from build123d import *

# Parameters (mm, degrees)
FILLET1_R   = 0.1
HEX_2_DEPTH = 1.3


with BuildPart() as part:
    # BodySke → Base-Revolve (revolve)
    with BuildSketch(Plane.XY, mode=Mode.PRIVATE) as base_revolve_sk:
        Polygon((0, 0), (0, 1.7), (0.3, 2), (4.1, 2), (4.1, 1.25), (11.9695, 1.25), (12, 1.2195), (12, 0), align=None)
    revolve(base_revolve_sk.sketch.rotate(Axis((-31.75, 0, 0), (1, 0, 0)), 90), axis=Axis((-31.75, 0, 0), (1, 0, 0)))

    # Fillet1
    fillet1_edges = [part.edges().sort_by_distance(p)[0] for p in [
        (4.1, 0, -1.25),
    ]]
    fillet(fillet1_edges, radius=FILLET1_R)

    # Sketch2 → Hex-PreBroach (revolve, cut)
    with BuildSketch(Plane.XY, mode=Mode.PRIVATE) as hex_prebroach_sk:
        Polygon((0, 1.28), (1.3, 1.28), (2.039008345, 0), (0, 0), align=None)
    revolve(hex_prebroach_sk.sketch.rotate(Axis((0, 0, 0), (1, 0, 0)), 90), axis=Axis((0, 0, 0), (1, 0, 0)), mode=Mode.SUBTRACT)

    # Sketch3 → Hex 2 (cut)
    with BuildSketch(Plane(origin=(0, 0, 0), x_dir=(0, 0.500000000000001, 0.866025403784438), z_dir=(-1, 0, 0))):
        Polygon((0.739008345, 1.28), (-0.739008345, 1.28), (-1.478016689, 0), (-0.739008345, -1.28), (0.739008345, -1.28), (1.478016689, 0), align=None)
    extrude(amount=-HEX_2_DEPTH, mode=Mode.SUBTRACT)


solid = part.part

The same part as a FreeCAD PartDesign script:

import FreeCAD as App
import Part
import Sketcher

V = App.Vector
Q = App.Units.Quantity


def edges_at(feature, points):
    """Names of the edges that pass closest to the given points."""
    edges = feature.Shape.Edges
    near = lambda p: min(range(len(edges)), key=lambda i: edges[i].distToShape(Part.Vertex(*p))[0])
    return sorted({f"Edge{near(p) + 1}" for p in points})

doc = App.newDocument("Part")
body = doc.addObject("PartDesign::Body", "Body")

# Sketch on XY plane
sketch1 = body.newObject("Sketcher::SketchObject", "Sketch")
sketch1.AttachmentSupport = (doc.getObject("XY_Plane"), [""])
sketch1.MapMode = "FlatFace"
sketch1.addGeometry([
    Part.LineSegment(V(0, 1.7, 0), V(0, 0, 0)),  # 0
    Part.LineSegment(V(0, 0, 0), V(12, 0, 0)),  # 1
    Part.LineSegment(V(12, 0, 0), V(12, 1.22, 0)),  # 2
    Part.LineSegment(V(12, 1.22, 0), V(11.97, 1.25, 0)),  # 3
    Part.LineSegment(V(11.97, 1.25, 0), V(4.1, 1.25, 0)),  # 4
    Part.LineSegment(V(4.1, 1.25, 0), V(4.1, 2, 0)),  # 5
    Part.LineSegment(V(4.1, 2, 0), V(0.3, 2, 0)),  # 6
    Part.LineSegment(V(0.3, 2, 0), V(0, 1.7, 0)),  # 7
], False)
sketch1.addConstraint([
    Sketcher.Constraint("Coincident", 0, 2, 1, 1),
    Sketcher.Constraint("Coincident", 1, 2, 2, 1),
    Sketcher.Constraint("Coincident", 2, 2, 3, 1),
    Sketcher.Constraint("Coincident", 3, 2, 4, 1),
    Sketcher.Constraint("Coincident", 4, 2, 5, 1),
    Sketcher.Constraint("Coincident", 5, 2, 6, 1),
    Sketcher.Constraint("Coincident", 6, 2, 7, 1),
    Sketcher.Constraint("Coincident", 7, 2, 0, 1),
    Sketcher.Constraint("Vertical", 0),
    Sketcher.Constraint("Horizontal", 1),
    Sketcher.Constraint("Vertical", 2),
    Sketcher.Constraint("Horizontal", 4),
    Sketcher.Constraint("Vertical", 5),
    Sketcher.Constraint("Horizontal", 6),
    Sketcher.Constraint("Coincident", 0, 2, -1, 1),
    Sketcher.Constraint("Perpendicular", 3, 7),
    Sketcher.Constraint("DistanceX", 1, 1, 1, 2, 12.0),
    Sketcher.Constraint("Angle", 3, Q("135 deg")),
    Sketcher.Constraint("DistanceX", 6, 2, 6, 1, 3.8),
    Sketcher.Constraint("DistanceY", 0, 2, 0, 1, 1.7),
    Sketcher.Constraint("DistanceY", -1, 1, 5, 2, 2.0),
    Sketcher.Constraint("DistanceY", 5, 1, 5, 2, 0.75),
    Sketcher.Constraint("DistanceX", 4, 2, 4, 1, 7.8695),
])
revolution = body.newObject("PartDesign::Revolution", "Revolution")
revolution.Profile = sketch1
revolution.ReferenceAxis = (sketch1, ["H_Axis"])
revolution.Angle = 360
doc.recompute()

fillet = body.newObject("PartDesign::Fillet", "Fillet")
fillet.Base = (revolution, edges_at(revolution, [(4.1, 0, -1.25)]))
fillet.Radius = 0.1

# Sketch on XY plane
sketch2 = body.newObject("Sketcher::SketchObject", "Sketch001")
sketch2.AttachmentSupport = (doc.getObject("XY_Plane"), [""])
sketch2.MapMode = "FlatFace"
sketch2.addGeometry([
    Part.LineSegment(V(1.3, 1.3, 0), V(0, 1.3, 0)),
    Part.LineSegment(V(0, 1.3, 0), V(0, 0, 0)),
    Part.LineSegment(V(0, 0, 0), V(2, 0, 0)),
    Part.LineSegment(V(2, 0, 0), V(1.3, 1.3, 0)),
], False)
sketch2.addConstraint([
    Sketcher.Constraint("Coincident", 0, 2, 1, 1),
    Sketcher.Constraint("Coincident", 1, 2, 2, 1),
    Sketcher.Constraint("Coincident", 2, 2, 3, 1),
    Sketcher.Constraint("Coincident", 3, 2, 0, 1),
    Sketcher.Constraint("Horizontal", 0),
    Sketcher.Constraint("Vertical", 1),
    Sketcher.Constraint("Horizontal", 2),
    Sketcher.Constraint("Coincident", 1, 2, -1, 1),
    Sketcher.Constraint("Angle", 3, Q("120 deg")),
    Sketcher.Constraint("DistanceX", 0, 2, 0, 1, 1.3),
    Sketcher.Constraint("DistanceY", 1, 2, 1, 1, 1.28),
])
groove = body.newObject("PartDesign::Groove", "Groove")
groove.Profile = sketch2
groove.ReferenceAxis = (sketch2, ["H_Axis"])
groove.Angle = 360

# Sketch on YZ plane
sketch3 = body.newObject("Sketcher::SketchObject", "Sketch002")
sketch3.AttachmentSupport = (doc.getObject("YZ_Plane"), [""])
sketch3.MapMode = "FlatFace"
sketch3.addGeometry([
    Part.LineSegment(V(1.5, 0, 0), V(0.7, -1.3, 0)),  # 0
    Part.LineSegment(V(0.7, -1.3, 0), V(-0.7, -1.3, 0)),  # 1
    Part.LineSegment(V(-0.7, -1.3, 0), V(-1.5, 0, 0)),  # 2
    Part.LineSegment(V(-1.5, 0, 0), V(-0.7, 1.3, 0)),  # 3
    Part.LineSegment(V(-0.7, 1.3, 0), V(0.7, 1.3, 0)),  # 4
    Part.LineSegment(V(0.7, 1.3, 0), V(1.5, 0, 0)),  # 5
], False)
sketch3.addConstraint([
    Sketcher.Constraint("Coincident", 0, 2, 1, 1),
    Sketcher.Constraint("Coincident", 1, 2, 2, 1),
    Sketcher.Constraint("Coincident", 2, 2, 3, 1),
    Sketcher.Constraint("Coincident", 3, 2, 4, 1),
    Sketcher.Constraint("Coincident", 4, 2, 5, 1),
    Sketcher.Constraint("Coincident", 5, 2, 0, 1),
    Sketcher.Constraint("Horizontal", 1),
    Sketcher.Constraint("Horizontal", 4),
    Sketcher.Constraint("Symmetric", 0, 2, 3, 2, -1, 1),
    Sketcher.Constraint("Symmetric", 2, 2, 5, 2, -1, 1),
    Sketcher.Constraint("PointOnObject", 2, 2, -1),
    Sketcher.Constraint("Parallel", 2, 5),
    Sketcher.Constraint("Vertical", 1, 2, 3, 2),
    Sketcher.Constraint("Angle", 0, Q("-120 deg")),
    Sketcher.Constraint("DistanceY", 0, 2, -1, 1, 1.28),
    Sketcher.Constraint("DistanceX", 1, 2, 1, 1, 1.478017),
])
pocket1 = body.newObject("PartDesign::Pocket", "Pocket")
pocket1.Profile = sketch3
pocket1.Length = 1.3
pocket1.Reversed = True

doc.recompute()
